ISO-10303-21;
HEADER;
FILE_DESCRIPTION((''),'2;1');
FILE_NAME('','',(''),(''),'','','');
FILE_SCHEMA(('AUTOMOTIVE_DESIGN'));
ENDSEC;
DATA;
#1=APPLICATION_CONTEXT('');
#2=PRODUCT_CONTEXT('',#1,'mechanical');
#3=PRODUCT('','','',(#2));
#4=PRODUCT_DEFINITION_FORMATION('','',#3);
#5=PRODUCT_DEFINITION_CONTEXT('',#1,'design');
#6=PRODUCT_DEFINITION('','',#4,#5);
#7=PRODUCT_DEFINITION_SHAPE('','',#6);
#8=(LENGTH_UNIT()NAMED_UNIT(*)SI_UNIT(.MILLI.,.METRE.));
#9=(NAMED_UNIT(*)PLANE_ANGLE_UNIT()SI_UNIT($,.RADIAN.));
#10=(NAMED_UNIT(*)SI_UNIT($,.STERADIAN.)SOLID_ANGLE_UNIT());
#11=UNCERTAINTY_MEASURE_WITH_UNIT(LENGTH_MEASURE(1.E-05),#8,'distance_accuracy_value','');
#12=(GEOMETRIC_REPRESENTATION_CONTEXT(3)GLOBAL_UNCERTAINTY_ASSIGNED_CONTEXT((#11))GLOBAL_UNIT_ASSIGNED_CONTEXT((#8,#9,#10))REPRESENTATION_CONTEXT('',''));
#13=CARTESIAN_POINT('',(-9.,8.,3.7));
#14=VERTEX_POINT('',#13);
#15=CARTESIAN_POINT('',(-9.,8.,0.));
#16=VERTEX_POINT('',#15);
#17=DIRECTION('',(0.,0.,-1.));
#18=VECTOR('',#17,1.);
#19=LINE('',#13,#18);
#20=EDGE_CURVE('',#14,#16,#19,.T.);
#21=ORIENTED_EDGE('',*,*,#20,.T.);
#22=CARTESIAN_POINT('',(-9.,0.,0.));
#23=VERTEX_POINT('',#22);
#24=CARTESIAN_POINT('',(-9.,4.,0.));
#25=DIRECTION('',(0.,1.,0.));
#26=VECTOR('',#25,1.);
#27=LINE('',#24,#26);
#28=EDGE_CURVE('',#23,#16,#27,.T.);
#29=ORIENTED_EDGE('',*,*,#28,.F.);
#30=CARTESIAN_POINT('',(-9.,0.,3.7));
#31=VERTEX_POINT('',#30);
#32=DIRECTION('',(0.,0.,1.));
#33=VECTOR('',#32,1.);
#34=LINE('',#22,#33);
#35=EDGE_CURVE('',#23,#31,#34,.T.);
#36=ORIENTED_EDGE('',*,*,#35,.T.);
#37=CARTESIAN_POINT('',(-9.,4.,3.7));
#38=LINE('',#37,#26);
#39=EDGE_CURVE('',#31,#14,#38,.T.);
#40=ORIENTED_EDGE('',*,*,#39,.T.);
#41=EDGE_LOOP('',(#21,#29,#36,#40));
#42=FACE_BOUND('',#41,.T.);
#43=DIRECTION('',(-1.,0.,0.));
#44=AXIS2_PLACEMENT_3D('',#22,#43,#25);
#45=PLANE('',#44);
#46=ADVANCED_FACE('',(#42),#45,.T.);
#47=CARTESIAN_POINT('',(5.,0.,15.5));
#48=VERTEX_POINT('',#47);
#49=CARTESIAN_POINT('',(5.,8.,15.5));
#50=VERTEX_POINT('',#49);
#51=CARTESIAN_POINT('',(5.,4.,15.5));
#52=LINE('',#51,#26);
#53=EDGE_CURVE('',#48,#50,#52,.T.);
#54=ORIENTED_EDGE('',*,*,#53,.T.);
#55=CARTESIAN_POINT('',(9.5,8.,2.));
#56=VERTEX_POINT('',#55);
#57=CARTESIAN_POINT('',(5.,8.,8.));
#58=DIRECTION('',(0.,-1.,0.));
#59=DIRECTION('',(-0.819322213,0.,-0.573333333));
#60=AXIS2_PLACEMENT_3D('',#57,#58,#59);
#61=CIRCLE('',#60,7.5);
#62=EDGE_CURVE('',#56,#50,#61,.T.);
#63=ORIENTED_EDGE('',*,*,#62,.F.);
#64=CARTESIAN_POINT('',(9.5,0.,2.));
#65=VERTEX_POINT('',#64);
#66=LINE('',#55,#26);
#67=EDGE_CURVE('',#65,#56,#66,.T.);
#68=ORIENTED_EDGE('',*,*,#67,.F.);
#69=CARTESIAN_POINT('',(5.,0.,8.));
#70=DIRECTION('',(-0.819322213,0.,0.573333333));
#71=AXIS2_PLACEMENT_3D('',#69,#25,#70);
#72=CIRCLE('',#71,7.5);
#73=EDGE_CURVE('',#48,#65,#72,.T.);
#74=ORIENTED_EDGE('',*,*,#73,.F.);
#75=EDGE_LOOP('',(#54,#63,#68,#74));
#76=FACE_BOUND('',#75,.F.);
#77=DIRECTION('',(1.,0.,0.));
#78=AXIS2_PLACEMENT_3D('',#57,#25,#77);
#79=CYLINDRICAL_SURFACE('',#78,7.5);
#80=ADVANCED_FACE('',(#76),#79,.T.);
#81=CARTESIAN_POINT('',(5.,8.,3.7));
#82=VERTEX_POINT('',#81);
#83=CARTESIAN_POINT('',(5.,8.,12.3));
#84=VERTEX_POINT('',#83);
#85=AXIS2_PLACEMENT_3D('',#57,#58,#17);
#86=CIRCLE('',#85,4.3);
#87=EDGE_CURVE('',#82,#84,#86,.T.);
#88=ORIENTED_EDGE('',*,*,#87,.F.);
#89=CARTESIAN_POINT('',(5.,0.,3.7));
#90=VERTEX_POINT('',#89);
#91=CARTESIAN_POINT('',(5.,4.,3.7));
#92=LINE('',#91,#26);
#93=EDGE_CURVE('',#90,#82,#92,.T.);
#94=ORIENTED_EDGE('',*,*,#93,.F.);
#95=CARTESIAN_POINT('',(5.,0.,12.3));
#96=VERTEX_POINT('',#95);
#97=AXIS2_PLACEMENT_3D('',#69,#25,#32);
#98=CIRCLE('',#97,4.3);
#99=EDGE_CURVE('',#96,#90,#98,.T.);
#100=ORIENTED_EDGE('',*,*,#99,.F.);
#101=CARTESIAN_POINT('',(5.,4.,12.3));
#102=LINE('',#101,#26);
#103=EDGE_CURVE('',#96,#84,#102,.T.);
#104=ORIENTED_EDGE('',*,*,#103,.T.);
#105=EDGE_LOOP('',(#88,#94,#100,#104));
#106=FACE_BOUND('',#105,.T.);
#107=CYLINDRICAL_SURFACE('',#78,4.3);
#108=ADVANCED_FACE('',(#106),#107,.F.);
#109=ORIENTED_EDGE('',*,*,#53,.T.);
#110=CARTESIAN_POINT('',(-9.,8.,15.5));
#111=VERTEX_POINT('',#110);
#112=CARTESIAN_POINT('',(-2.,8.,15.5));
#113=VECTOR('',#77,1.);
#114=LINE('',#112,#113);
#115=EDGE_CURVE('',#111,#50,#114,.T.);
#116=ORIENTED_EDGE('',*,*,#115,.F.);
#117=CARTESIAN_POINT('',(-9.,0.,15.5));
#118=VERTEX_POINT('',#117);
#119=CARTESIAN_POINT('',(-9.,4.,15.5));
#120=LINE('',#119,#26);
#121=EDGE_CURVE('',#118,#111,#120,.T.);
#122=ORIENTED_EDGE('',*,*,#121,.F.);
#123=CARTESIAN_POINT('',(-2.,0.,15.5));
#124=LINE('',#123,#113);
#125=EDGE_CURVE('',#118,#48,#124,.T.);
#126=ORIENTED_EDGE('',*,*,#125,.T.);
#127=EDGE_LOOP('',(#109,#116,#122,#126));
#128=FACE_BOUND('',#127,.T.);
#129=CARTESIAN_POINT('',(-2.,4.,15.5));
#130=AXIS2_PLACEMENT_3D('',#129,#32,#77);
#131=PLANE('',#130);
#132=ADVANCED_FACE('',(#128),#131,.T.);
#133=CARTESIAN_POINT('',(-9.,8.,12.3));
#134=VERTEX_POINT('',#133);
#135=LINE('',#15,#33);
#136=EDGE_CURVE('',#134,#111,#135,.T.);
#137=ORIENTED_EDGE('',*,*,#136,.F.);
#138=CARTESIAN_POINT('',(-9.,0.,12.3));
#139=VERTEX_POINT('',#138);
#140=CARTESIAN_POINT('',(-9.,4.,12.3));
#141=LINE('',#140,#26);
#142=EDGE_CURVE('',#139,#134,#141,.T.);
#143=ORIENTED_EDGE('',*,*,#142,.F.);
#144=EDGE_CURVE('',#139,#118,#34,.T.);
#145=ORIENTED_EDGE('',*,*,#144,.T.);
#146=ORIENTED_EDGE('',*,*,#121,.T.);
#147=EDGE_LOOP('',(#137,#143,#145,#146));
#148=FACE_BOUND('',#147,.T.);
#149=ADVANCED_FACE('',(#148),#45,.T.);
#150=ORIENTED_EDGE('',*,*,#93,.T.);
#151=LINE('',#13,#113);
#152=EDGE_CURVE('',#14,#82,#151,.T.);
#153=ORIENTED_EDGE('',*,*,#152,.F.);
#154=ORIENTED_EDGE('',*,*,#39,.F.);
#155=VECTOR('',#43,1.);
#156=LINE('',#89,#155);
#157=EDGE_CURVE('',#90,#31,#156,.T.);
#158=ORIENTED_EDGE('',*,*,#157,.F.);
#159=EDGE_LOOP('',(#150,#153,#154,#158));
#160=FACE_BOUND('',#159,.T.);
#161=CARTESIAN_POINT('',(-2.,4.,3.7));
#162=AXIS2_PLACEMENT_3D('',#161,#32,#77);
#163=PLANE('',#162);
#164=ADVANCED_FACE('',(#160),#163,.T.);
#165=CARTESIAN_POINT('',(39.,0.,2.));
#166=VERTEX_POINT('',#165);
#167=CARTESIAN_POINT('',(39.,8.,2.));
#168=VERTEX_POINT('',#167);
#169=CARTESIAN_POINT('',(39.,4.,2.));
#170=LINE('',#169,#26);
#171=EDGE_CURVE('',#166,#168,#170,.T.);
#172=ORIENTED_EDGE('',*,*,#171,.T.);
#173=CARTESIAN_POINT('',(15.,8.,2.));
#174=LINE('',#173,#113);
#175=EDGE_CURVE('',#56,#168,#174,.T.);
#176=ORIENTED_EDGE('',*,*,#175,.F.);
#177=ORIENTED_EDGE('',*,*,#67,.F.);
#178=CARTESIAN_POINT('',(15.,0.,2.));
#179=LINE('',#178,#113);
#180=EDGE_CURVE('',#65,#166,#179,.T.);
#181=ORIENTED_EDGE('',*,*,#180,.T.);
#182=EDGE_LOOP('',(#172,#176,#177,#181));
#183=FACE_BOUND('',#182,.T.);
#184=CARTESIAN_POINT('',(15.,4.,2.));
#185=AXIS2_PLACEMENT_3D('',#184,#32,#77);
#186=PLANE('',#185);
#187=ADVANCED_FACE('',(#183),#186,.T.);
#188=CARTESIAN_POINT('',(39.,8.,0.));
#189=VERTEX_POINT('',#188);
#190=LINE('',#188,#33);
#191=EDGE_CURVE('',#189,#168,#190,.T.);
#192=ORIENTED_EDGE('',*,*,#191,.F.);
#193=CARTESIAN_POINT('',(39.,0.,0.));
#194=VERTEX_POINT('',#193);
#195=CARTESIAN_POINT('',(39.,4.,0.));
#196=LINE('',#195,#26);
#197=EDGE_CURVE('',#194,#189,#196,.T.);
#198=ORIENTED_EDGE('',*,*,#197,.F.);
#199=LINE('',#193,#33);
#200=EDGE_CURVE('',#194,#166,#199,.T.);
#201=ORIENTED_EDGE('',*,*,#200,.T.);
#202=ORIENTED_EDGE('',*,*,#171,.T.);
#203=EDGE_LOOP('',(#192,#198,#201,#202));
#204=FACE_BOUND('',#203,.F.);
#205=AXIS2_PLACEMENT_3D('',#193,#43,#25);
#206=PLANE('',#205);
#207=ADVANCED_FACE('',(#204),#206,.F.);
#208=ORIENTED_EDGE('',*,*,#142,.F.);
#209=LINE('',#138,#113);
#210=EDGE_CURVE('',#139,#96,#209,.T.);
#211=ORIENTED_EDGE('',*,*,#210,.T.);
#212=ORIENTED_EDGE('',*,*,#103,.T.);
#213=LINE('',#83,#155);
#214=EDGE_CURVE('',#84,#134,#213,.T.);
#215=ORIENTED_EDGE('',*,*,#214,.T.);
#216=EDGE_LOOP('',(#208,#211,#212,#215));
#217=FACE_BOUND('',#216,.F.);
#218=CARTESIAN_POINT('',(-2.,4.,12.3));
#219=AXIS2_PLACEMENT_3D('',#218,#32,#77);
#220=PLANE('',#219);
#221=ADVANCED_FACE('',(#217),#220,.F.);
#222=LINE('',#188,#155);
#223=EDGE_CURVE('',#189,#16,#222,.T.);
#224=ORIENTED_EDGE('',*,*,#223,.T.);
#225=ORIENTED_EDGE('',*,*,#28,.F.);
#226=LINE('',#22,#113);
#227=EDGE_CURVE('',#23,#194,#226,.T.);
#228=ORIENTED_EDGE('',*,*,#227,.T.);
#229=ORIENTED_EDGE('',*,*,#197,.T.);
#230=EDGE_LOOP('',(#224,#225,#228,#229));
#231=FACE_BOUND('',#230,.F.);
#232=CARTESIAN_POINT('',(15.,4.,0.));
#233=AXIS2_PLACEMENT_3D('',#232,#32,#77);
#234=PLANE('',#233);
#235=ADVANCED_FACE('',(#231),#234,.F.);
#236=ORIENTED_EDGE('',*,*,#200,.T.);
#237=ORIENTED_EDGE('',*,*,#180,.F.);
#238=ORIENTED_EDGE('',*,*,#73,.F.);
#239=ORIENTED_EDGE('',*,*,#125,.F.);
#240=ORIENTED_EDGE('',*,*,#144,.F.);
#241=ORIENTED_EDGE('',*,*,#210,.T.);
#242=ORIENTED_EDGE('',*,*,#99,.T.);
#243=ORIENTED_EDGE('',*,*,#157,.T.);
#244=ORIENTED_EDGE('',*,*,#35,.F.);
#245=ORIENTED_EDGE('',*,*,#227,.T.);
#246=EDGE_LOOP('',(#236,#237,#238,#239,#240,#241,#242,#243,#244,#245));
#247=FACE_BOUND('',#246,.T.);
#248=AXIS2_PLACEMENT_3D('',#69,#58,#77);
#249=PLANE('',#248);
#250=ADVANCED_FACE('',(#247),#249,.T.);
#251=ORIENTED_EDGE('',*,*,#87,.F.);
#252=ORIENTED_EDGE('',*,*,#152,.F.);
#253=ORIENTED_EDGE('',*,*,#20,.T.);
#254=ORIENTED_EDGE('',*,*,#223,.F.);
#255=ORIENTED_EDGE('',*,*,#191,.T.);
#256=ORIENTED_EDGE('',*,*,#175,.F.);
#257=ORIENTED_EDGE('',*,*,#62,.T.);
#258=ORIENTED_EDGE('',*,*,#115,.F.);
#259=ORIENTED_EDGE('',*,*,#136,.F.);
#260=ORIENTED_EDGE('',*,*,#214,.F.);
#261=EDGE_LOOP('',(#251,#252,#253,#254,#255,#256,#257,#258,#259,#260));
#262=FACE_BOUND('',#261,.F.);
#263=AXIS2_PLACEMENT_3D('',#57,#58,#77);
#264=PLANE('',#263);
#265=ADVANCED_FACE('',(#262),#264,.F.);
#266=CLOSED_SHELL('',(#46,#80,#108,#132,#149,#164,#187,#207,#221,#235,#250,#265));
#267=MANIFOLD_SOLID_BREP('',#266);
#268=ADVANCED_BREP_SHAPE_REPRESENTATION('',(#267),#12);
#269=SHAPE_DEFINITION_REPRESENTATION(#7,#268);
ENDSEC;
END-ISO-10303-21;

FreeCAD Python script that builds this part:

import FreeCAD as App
import Part
import Sketcher

doc = App.newDocument("Part")
params = doc.addObject("Spreadsheet::Sheet", "Params")
for row, (alias, value) in enumerate([
    ("sketch1_width", "14 mm"),
    ("sketch1_height", "8 mm"),
    ("pad1_length", "8.6 mm"),
    ("sketch2_diameter", "8.6 mm"),
    ("pad2_length", "8 mm"),
    ("sketch3_diameter", "15 mm"),
    ("pad3_length", "8 mm"),
    ("sketch4_width", "14 mm"),
    ("sketch4_height", "8 mm"),
    ("pad4_length", "8.6 mm"),
    ("sketch5_width", "14 mm"),
    ("sketch5_height", "8 mm"),
    ("pad5_length", "15.5 mm"),
    ("sketch6_width", "48 mm"),
    ("sketch6_height", "8 mm"),
    ("pad6_length", "2 mm"),
], start=1):
    params.set(f"A{row}", alias)
    params.set(f"B{row}", "=" + value)
    params.setAlias(f"B{row}", alias)

body = doc.addObject("PartDesign::Body", "Body")

sketch1 = doc.addObject("Sketcher::SketchObject", "Sketch")
body.addObject(sketch1)
sketch1.AttachmentSupport = (doc.XY_Plane, [""])
sketch1.MapMode = "FlatFace"
sketch1.AttachmentOffset = App.Placement(App.Vector(0, 0, 3.7), App.Rotation())
sketch1.addGeometry([
    Part.LineSegment(App.Vector(-9, 8, 0), App.Vector(-9, 0, 0)),
    Part.LineSegment(App.Vector(-9, 0, 0), App.Vector(5, 0, 0)),
    Part.LineSegment(App.Vector(5, 0, 0), App.Vector(5, 8, 0)),
    Part.LineSegment(App.Vector(5, 8, 0), App.Vector(-9, 8, 0)),
], False)
sketch1.addConstraint([
    Sketcher.Constraint("Coincident", 0, 2, 1, 1),
    Sketcher.Constraint("Coincident", 1, 2, 2, 1),
    Sketcher.Constraint("Coincident", 2, 2, 3, 1),
    Sketcher.Constraint("Coincident", 3, 2, 0, 1),
    Sketcher.Constraint("Vertical", 0),
    Sketcher.Constraint("Horizontal", 1),
    Sketcher.Constraint("Vertical", 2),
    Sketcher.Constraint("Horizontal", 3),
    Sketcher.Constraint("PointOnObject", 0, 2, -1),
    Sketcher.Constraint("DistanceX", 1, 1, 1, 2, 14.0),
    Sketcher.Constraint("DistanceY", 0, 2, 0, 1, 8.0),
    Sketcher.Constraint("DistanceX", 0, 2, -1, 1, 9.0),
])
sketch1.setExpression("Constraints[9]", "Params.sketch1_width")
sketch1.setExpression("Constraints[10]", "Params.sketch1_height")
pad1 = doc.addObject("PartDesign::Pad", "Pad")
body.addObject(pad1)
pad1.Profile = sketch1
pad1.setExpression("Length", "Params.pad1_length")
body2 = doc.addObject("PartDesign::Body", "Body001")

sketch2 = doc.addObject("Sketcher::SketchObject", "Sketch001")
body2.addObject(sketch2)
sketch2.AttachmentSupport = (doc.getObject("XY_Plane001"), [""])
sketch2.MapMode = "FlatFace"
sketch2.addGeometry(Part.Circle(App.Vector(0, 0, 0), App.Vector(0, 0, 1), 4.3), False)
sketch2.addConstraint([
    Sketcher.Constraint("Coincident", 0, 3, -1, 1),
    Sketcher.Constraint("Diameter", 0, 8.6),
])
sketch2.setExpression("Constraints[1]", "Params.sketch2_diameter")
pad2 = doc.addObject("PartDesign::Pad", "Pad001")
body2.addObject(pad2)
pad2.Profile = sketch2
pad2.setExpression("Length", "Params.pad2_length")
body3 = doc.addObject("PartDesign::Body", "Body002")
doc.recompute()

body2.Placement = App.Placement(App.Vector(0, 0, 0), App.Rotation(App.Vector(1, 0, 0), 90))
boolean = doc.addObject("PartDesign::Boolean", "Boolean")
body3.addObject(boolean)
boolean.Type = "Fuse"
boolean.addObjects([body2])
body4 = doc.addObject("PartDesign::Body", "Body003")
doc.recompute()

body3.Placement = App.Placement(App.Vector(5, 8, 8), App.Rotation(App.Vector(0, 0, 1), 0))
boolean2 = doc.addObject("PartDesign::Boolean", "Boolean001")
body4.addObject(boolean2)
boolean2.Type = "Fuse"
boolean2.addObjects([body3])
body5 = doc.addObject("PartDesign::Body", "Body004")

sketch3 = doc.addObject("Sketcher::SketchObject", "Sketch002")
body5.addObject(sketch3)
sketch3.AttachmentSupport = (doc.getObject("XY_Plane004"), [""])
sketch3.MapMode = "FlatFace"
sketch3.addGeometry(Part.Circle(App.Vector(0, 0, 0), App.Vector(0, 0, 1), 7.5), False)
sketch3.addConstraint([
    Sketcher.Constraint("Coincident", 0, 3, -1, 1),
    Sketcher.Constraint("Diameter", 0, 15.0),
])
sketch3.setExpression("Constraints[1]", "Params.sketch3_diameter")
pad3 = doc.addObject("PartDesign::Pad", "Pad002")
body5.addObject(pad3)
pad3.Profile = sketch3
pad3.setExpression("Length", "Params.pad3_length")
body6 = doc.addObject("PartDesign::Body", "Body005")
doc.recompute()

body5.Placement = App.Placement(App.Vector(0, 0, 0), App.Rotation(App.Vector(1, 0, 0), 90))
boolean3 = doc.addObject("PartDesign::Boolean", "Boolean002")
body6.addObject(boolean3)
boolean3.Type = "Fuse"
boolean3.addObjects([body5])
body7 = doc.addObject("PartDesign::Body", "Body006")
doc.recompute()

body6.Placement = App.Placement(App.Vector(5, 8, 8), App.Rotation(App.Vector(0, 0, 1), 0))
boolean4 = doc.addObject("PartDesign::Boolean", "Boolean003")
body7.addObject(boolean4)
boolean4.Type = "Fuse"
boolean4.addObjects([body6])
doc.recompute()

boolean5 = doc.addObject("PartDesign::Boolean", "Boolean004")
body7.addObject(boolean5)
boolean5.Type = "Cut"
boolean5.addObjects([body4])
doc.recompute()

boolean6 = doc.addObject("PartDesign::Boolean", "Boolean005")
body7.addObject(boolean6)
boolean6.Type = "Cut"
boolean6.addObjects([body])
body8 = doc.addObject("PartDesign::Body", "Body007")

sketch4 = doc.addObject("Sketcher::SketchObject", "Sketch003")
body8.addObject(sketch4)
sketch4.AttachmentSupport = (doc.getObject("XY_Plane007"), [""])
sketch4.MapMode = "FlatFace"
sketch4.AttachmentOffset = App.Placement(App.Vector(0, 0, 3.7), App.Rotation())
sketch4.addGeometry([
    Part.LineSegment(App.Vector(-9, 8, 0), App.Vector(-9, 0, 0)),
    Part.LineSegment(App.Vector(-9, 0, 0), App.Vector(5, 0, 0)),
    Part.LineSegment(App.Vector(5, 0, 0), App.Vector(5, 8, 0)),
    Part.LineSegment(App.Vector(5, 8, 0), App.Vector(-9, 8, 0)),
], False)
sketch4.addConstraint([
    Sketcher.Constraint("Coincident", 0, 2, 1, 1),
    Sketcher.Constraint("Coincident", 1, 2, 2, 1),
    Sketcher.Constraint("Coincident", 2, 2, 3, 1),
    Sketcher.Constraint("Coincident", 3, 2, 0, 1),
    Sketcher.Constraint("Vertical", 0),
    Sketcher.Constraint("Horizontal", 1),
    Sketcher.Constraint("Vertical", 2),
    Sketcher.Constraint("Horizontal", 3),
    Sketcher.Constraint("PointOnObject", 0, 2, -1),
    Sketcher.Constraint("DistanceX", 1, 1, 1, 2, 14.0),
    Sketcher.Constraint("DistanceY", 0, 2, 0, 1, 8.0),
    Sketcher.Constraint("DistanceX", 0, 2, -1, 1, 9.0),
])
sketch4.setExpression("Constraints[9]", "Params.sketch4_width")
sketch4.setExpression("Constraints[10]", "Params.sketch4_height")
pad4 = doc.addObject("PartDesign::Pad", "Pad003")
body8.addObject(pad4)
pad4.Profile = sketch4
pad4.setExpression("Length", "Params.pad4_length")
body9 = doc.addObject("PartDesign::Body", "Body008")
body9.AllowCompound = True

sketch5 = doc.addObject("Sketcher::SketchObject", "Sketch004")
body9.addObject(sketch5)
sketch5.AttachmentSupport = (doc.getObject("XY_Plane008"), [""])
sketch5.MapMode = "FlatFace"
sketch5.addGeometry([
    Part.LineSegment(App.Vector(-9, 8, 0), App.Vector(-9, 0, 0)),
    Part.LineSegment(App.Vector(-9, 0, 0), App.Vector(5, 0, 0)),
    Part.LineSegment(App.Vector(5, 0, 0), App.Vector(5, 8, 0)),
    Part.LineSegment(App.Vector(5, 8, 0), App.Vector(-9, 8, 0)),
], False)
sketch5.addConstraint([
    Sketcher.Constraint("Coincident", 0, 2, 1, 1),
    Sketcher.Constraint("Coincident", 1, 2, 2, 1),
    Sketcher.Constraint("Coincident", 2, 2, 3, 1),
    Sketcher.Constraint("Coincident", 3, 2, 0, 1),
    Sketcher.Constraint("Vertical", 0),
    Sketcher.Constraint("Horizontal", 1),
    Sketcher.Constraint("Vertical", 2),
    Sketcher.Constraint("Horizontal", 3),
    Sketcher.Constraint("PointOnObject", 0, 2, -1),
    Sketcher.Constraint("DistanceX", 1, 1, 1, 2, 14.0),
    Sketcher.Constraint("DistanceY", 0, 2, 0, 1, 8.0),
    Sketcher.Constraint("DistanceX", 0, 2, -1, 1, 9.0),
])
sketch5.setExpression("Constraints[9]", "Params.sketch5_width")
sketch5.setExpression("Constraints[10]", "Params.sketch5_height")
pad5 = doc.addObject("PartDesign::Pad", "Pad004")
body9.addObject(pad5)
pad5.Profile = sketch5
pad5.setExpression("Length", "Params.pad5_length")
doc.recompute()

boolean7 = doc.addObject("PartDesign::Boolean", "Boolean006")
body9.addObject(boolean7)
boolean7.Type = "Cut"
boolean7.addObjects([body8])
body10 = doc.addObject("PartDesign::Body", "Body009")
body10.AllowCompound = True

sketch6 = doc.addObject("Sketcher::SketchObject", "Sketch005")
body10.addObject(sketch6)
sketch6.AttachmentSupport = (doc.getObject("XY_Plane009"), [""])
sketch6.MapMode = "FlatFace"
sketch6.addGeometry([
    Part.LineSegment(App.Vector(-9, 8, 0), App.Vector(-9, 0, 0)),
    Part.LineSegment(App.Vector(-9, 0, 0), App.Vector(39, 0, 0)),
    Part.LineSegment(App.Vector(39, 0, 0), App.Vector(39, 8, 0)),
    Part.LineSegment(App.Vector(39, 8, 0), App.Vector(-9, 8, 0)),
], False)
sketch6.addConstraint([
    Sketcher.Constraint("Coincident", 0, 2, 1, 1),
    Sketcher.Constraint("Coincident", 1, 2, 2, 1),
    Sketcher.Constraint("Coincident", 2, 2, 3, 1),
    Sketcher.Constraint("Coincident", 3, 2, 0, 1),
    Sketcher.Constraint("Vertical", 0),
    Sketcher.Constraint("Horizontal", 1),
    Sketcher.Constraint("Vertical", 2),
    Sketcher.Constraint("Horizontal", 3),
    Sketcher.Constraint("PointOnObject", 0, 2, -1),
    Sketcher.Constraint("DistanceX", 1, 1, 1, 2, 48.0),
    Sketcher.Constraint("DistanceY", 0, 2, 0, 1, 8.0),
    Sketcher.Constraint("DistanceX", 0, 2, -1, 1, 9.0),
])
sketch6.setExpression("Constraints[9]", "Params.sketch6_width")
sketch6.setExpression("Constraints[10]", "Params.sketch6_height")
pad6 = doc.addObject("PartDesign::Pad", "Pad005")
body10.addObject(pad6)
pad6.Profile = sketch6
pad6.setExpression("Length", "Params.pad6_length")
doc.recompute()

boolean8 = doc.addObject("PartDesign::Boolean", "Boolean007")
body10.addObject(boolean8)
boolean8.Type = "Fuse"
boolean8.addObjects([body9])
doc.recompute()

boolean9 = doc.addObject("PartDesign::Boolean", "Boolean008")
body10.addObject(boolean9)
boolean9.Type = "Fuse"
boolean9.addObjects([body7])

doc.recompute()
